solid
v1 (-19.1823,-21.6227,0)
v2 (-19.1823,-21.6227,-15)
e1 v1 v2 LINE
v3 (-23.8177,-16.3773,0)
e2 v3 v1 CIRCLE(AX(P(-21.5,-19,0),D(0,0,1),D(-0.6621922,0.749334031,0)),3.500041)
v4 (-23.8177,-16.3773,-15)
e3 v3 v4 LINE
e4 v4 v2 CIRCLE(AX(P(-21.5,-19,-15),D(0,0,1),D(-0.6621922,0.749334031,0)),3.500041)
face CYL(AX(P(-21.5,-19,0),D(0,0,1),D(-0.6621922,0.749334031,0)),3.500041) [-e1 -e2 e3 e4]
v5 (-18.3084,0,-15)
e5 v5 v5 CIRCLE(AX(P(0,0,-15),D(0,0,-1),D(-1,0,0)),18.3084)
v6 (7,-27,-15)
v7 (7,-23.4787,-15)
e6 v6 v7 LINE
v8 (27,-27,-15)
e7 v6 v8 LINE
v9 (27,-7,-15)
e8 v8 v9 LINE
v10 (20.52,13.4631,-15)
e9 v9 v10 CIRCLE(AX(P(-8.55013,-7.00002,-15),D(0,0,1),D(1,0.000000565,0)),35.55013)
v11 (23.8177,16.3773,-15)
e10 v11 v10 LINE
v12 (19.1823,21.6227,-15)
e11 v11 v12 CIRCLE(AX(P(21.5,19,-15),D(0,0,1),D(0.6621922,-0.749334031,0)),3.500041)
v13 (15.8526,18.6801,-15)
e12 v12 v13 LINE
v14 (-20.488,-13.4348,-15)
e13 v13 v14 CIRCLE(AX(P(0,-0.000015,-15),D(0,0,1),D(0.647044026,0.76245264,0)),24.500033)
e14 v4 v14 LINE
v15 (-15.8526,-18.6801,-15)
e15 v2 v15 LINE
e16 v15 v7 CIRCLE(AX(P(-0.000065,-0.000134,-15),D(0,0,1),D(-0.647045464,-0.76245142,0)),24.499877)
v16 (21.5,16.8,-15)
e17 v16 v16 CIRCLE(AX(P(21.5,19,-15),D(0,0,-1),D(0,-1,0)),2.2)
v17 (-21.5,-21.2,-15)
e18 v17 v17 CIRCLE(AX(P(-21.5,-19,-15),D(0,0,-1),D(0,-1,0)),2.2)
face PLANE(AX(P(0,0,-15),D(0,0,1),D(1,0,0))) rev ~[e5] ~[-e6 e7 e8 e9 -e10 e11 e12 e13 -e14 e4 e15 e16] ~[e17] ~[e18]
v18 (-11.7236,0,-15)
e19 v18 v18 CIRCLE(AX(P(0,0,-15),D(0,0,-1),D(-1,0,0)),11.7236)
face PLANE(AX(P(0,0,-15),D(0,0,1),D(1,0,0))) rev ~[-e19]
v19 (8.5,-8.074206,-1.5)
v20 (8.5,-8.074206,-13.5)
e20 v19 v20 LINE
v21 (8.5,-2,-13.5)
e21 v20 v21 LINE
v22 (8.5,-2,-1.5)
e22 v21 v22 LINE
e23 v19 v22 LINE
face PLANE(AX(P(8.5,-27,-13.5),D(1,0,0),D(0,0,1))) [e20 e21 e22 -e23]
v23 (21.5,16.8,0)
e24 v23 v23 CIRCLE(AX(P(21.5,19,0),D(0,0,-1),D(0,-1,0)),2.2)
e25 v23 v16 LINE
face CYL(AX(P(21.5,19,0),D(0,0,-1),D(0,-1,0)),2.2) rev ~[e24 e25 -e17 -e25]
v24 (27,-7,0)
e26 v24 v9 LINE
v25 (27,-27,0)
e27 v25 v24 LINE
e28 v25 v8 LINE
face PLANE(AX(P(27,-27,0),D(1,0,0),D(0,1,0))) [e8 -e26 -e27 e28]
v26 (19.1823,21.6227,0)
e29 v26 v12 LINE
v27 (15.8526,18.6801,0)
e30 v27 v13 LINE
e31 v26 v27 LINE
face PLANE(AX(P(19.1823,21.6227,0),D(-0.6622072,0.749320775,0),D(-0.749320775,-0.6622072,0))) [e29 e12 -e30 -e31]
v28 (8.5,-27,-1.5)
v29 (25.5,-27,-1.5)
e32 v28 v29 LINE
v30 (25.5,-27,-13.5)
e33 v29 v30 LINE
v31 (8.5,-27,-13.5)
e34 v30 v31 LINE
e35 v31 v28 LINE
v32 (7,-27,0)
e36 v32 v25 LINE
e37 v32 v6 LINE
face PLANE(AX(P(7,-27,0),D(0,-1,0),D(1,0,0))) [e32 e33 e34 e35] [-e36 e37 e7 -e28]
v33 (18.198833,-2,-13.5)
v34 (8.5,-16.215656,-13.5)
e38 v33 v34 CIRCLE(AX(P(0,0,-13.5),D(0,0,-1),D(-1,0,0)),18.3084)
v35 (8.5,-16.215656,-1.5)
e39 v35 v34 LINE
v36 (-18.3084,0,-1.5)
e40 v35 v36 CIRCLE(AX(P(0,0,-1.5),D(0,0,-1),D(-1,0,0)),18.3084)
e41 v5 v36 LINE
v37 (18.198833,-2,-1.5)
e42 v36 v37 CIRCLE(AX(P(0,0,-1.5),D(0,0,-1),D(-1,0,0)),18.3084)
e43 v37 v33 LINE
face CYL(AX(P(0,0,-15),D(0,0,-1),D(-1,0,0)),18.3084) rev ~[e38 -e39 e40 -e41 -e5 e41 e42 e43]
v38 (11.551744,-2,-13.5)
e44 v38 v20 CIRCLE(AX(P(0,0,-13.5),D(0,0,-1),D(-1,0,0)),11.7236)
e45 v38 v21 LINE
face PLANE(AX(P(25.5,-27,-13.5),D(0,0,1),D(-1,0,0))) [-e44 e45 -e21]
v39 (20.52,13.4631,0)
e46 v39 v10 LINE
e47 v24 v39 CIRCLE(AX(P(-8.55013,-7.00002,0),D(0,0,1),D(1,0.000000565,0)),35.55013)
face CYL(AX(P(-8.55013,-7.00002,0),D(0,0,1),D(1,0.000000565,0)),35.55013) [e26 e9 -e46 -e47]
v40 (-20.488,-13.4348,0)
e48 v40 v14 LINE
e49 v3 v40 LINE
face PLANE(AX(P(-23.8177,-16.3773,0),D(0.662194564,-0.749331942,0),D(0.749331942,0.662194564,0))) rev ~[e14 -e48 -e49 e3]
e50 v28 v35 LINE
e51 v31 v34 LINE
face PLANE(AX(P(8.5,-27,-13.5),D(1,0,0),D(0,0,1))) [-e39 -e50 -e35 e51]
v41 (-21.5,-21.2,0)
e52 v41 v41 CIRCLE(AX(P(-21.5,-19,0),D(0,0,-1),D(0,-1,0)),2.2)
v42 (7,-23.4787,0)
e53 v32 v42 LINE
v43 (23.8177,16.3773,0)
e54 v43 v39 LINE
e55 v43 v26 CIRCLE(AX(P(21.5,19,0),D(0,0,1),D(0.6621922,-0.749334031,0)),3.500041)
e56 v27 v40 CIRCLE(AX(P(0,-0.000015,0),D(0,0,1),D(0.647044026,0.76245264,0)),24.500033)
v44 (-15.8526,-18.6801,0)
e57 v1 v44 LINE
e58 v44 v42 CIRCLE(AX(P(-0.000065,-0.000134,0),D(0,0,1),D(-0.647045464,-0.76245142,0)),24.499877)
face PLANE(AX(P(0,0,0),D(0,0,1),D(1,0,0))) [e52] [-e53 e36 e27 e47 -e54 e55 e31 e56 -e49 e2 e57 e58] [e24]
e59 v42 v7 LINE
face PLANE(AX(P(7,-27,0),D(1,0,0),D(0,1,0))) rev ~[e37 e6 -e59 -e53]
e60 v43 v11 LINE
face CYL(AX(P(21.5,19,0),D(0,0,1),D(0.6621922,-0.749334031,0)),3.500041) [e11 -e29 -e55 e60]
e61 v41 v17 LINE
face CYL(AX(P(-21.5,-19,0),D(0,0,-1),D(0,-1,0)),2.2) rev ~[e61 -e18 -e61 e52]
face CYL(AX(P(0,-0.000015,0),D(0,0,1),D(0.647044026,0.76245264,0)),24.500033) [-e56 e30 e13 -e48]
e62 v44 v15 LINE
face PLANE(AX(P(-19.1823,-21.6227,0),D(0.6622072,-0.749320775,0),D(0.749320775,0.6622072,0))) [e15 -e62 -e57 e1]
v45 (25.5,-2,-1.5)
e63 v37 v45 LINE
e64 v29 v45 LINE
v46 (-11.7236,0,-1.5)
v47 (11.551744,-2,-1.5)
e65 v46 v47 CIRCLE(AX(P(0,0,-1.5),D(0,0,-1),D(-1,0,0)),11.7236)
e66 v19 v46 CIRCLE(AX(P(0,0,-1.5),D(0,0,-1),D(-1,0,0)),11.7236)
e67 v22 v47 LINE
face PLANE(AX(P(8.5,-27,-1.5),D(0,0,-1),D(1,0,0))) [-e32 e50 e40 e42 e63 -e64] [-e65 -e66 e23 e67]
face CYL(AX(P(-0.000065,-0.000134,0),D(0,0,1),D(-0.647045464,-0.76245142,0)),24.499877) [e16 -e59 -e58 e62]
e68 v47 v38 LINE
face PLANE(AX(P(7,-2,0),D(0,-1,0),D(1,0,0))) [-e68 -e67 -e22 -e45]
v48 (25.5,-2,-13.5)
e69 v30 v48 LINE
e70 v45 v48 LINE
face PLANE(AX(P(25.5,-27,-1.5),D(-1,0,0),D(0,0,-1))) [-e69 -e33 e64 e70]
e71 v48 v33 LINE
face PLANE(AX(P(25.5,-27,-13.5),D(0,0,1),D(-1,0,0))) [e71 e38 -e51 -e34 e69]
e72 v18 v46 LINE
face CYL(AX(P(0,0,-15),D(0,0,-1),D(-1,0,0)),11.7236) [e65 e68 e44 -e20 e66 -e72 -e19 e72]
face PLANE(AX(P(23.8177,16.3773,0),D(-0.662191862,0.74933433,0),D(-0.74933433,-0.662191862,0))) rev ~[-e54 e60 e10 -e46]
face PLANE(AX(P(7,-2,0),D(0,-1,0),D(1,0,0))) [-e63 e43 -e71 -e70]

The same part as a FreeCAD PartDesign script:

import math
import FreeCAD as App
import Part
import Sketcher

doc = App.newDocument("Part")
body = doc.addObject("PartDesign::Body", "Body")

# Sketch on XY plane
sketch1 = body.newObject("Sketcher::SketchObject", "Sketch")
sketch1.AttachmentSupport = (doc.getObject("XY_Plane"), [""])
sketch1.MapMode = "FlatFace"
sketch1.addGeometry([
    Part.LineSegment(App.Vector(7, -23.5, 0), App.Vector(7, -27, 0)),  # 0
    Part.LineSegment(App.Vector(7, -27, 0), App.Vector(27, -27, 0)),  # 1
    Part.LineSegment(App.Vector(27, -27, 0), App.Vector(27, -7, 0)),  # 2
    Part.ArcOfCircle(Part.Circle(App.Vector(-8.6, -7, 0), App.Vector(0, 0, 1), 35.6), math.radians(0), math.radians(35)),  # 3
    Part.LineSegment(App.Vector(20.5, 13.5, 0), App.Vector(23.8, 16.4, 0)),  # 4
    Part.ArcOfCircle(Part.Circle(App.Vector(21.5, 19, 0), App.Vector(0, 0, 1), 3.5), math.radians(-49), math.radians(131)),  # 5
    Part.LineSegment(App.Vector(19.2, 21.6, 0), App.Vector(15.9, 18.7, 0)),  # 6
    Part.ArcOfCircle(Part.Circle(App.Vector(0, 0, 0), App.Vector(0, 0, 1), 24.5), math.radians(50), math.radians(213)),  # 7
    Part.LineSegment(App.Vector(-20.5, -13.4, 0), App.Vector(-23.8, -16.4, 0)),  # 8
    Part.ArcOfCircle(Part.Circle(App.Vector(-21.5, -19, 0), App.Vector(0, 0, 1), 3.5), math.radians(131), math.radians(311)),  # 9
    Part.LineSegment(App.Vector(-19.2, -21.6, 0), App.Vector(-15.9, -18.7, 0)),  # 10
    Part.ArcOfCircle(Part.Circle(App.Vector(0, 0, 0), App.Vector(0, 0, 1), 24.5), math.radians(-130), math.radians(-73)),  # 11
], False)
sketch1.addConstraint([
    Sketcher.Constraint("Coincident", 0, 2, 1, 1),
    Sketcher.Constraint("Coincident", 1, 2, 2, 1),
    Sketcher.Constraint("Tangent", 2, 2, 3, 1),
    Sketcher.Constraint("Coincident", 3, 2, 4, 1),
    Sketcher.Constraint("Tangent", 4, 2, 5, 1),
    Sketcher.Constraint("Tangent", 5, 2, 6, 1),
    Sketcher.Constraint("Coincident", 6, 2, 7, 1),
    Sketcher.Constraint("Coincident", 7, 2, 8, 1),
    Sketcher.Constraint("Tangent", 8, 2, 9, 1),
    Sketcher.Constraint("Tangent", 9, 2, 10, 1),
    Sketcher.Constraint("Coincident", 10, 2, 11, 1),
    Sketcher.Constraint("Coincident", 11, 2, 0, 1),
    Sketcher.Constraint("Vertical", 0),
    Sketcher.Constraint("Horizontal", 1),
    Sketcher.Constraint("Vertical", 2),
    Sketcher.Constraint("Coincident", 7, 3, -1, 1),
    Sketcher.Constraint("Coincident", 11, 3, -1, 1),
    Sketcher.Constraint("Equal", 5, 9),
    Sketcher.Constraint("Equal", 7, 11),
    Sketcher.Constraint("Symmetric", 5, 3, 9, 3, -1, 1),
    Sketcher.Constraint("Parallel", 4, 6),
    Sketcher.Constraint("Parallel", 6, 8),
    Sketcher.Constraint("Parallel", 8, 10),
    Sketcher.Constraint("Equal", 1, 2),
    Sketcher.Constraint("Equal", 6, 8),
    Sketcher.Constraint("Radius", 5, 3.5),
    Sketcher.Constraint("Radius", 7, 24.5),
    Sketcher.Constraint("DistanceX", 1, 1, 1, 2, 20.0),
    Sketcher.Constraint("DistanceY", 3, 3, -1, 1, 7.0),
    Sketcher.Constraint("DistanceX", -1, 1, 0, 2, 7.0),
    Sketcher.Constraint("DistanceX", 9, 3, 5, 3, 43.0),
    Sketcher.Constraint("DistanceY", 9, 3, 5, 3, 38.0),
    Sketcher.Constraint("Radius", 3, 35.55),
])
pad1 = body.newObject("PartDesign::Pad", "Pad")
pad1.Profile = sketch1
pad1.Length = 15
pad1.Reversed = True

# Sketch on XZ plane
sketch2 = body.newObject("Sketcher::SketchObject", "Sketch001")
sketch2.AttachmentSupport = (doc.getObject("XZ_Plane"), [""])
sketch2.MapMode = "FlatFace"
sketch2.AttachmentOffset = App.Placement(App.Vector(0, 0, 27), App.Rotation())
sketch2.addGeometry([
    Part.LineSegment(App.Vector(26, -2, 0), App.Vector(8, -2, 0)),
    Part.LineSegment(App.Vector(8, -2, 0), App.Vector(8, -14, 0)),
    Part.LineSegment(App.Vector(8, -14, 0), App.Vector(26, -14, 0)),
    Part.LineSegment(App.Vector(26, -14, 0), App.Vector(26, -2, 0)),
], False)
sketch2.addConstraint([
    Sketcher.Constraint("Coincident", 0, 2, 1, 1),
    Sketcher.Constraint("Coincident", 1, 2, 2, 1),
    Sketcher.Constraint("Coincident", 2, 2, 3, 1),
    Sketcher.Constraint("Coincident", 3, 2, 0, 1),
    Sketcher.Constraint("Horizontal", 0),
    Sketcher.Constraint("Vertical", 1),
    Sketcher.Constraint("Horizontal", 2),
    Sketcher.Constraint("Vertical", 3),
    Sketcher.Constraint("DistanceY", 0, 2, -1, 1, 1.5),
    Sketcher.Constraint("DistanceX", 0, 2, 0, 1, 17.0),
    Sketcher.Constraint("DistanceY", 1, 2, 1, 1, 12.0),
    Sketcher.Constraint("DistanceX", -1, 1, 0, 2, 8.5),
])
pocket1 = body.newObject("PartDesign::Pocket", "Pocket")
pocket1.Profile = sketch2
pocket1.Length = 25

# Sketch on XY plane
sketch3 = body.newObject("Sketcher::SketchObject", "Sketch002")
sketch3.AttachmentSupport = (doc.getObject("XY_Plane"), [""])
sketch3.MapMode = "FlatFace"
sketch3.addGeometry([
    Part.Circle(App.Vector(-21.5, -19, 0), App.Vector(0, 0, 1), 2.2),
    Part.Circle(App.Vector(21.5, 19, 0), App.Vector(0, 0, 1), 2.2),
], False)
sketch3.addConstraint([
    Sketcher.Constraint("Equal", 0, 1),
    Sketcher.Constraint("Symmetric", 0, 3, 1, 3, -1, 1),
    Sketcher.Constraint("Diameter", 0, 4.4),
    Sketcher.Constraint("DistanceY", 0, 3, -1, 1, 19.0),
    Sketcher.Constraint("DistanceX", 0, 3, 1, 3, 43.0),
])
doc.recompute()
hole = body.newObject("PartDesign::Hole", "Hole")
hole.Profile = sketch3
hole.ThreadType = "None"
hole.Diameter = 4.4
hole.DepthType = "ThroughAll"

# Sketch on XY plane
sketch4 = body.newObject("Sketcher::SketchObject", "Sketch003")
sketch4.AttachmentSupport = (doc.getObject("XY_Plane"), [""])
sketch4.MapMode = "FlatFace"
sketch4.AttachmentOffset = App.Placement(App.Vector(0, 0, -15), App.Rotation())
sketch4.addGeometry([
    Part.Circle(App.Vector(0, 0, 0), App.Vector(0, 0, 1), 18),
    Part.Circle(App.Vector(0, 0, 0), App.Vector(0, 0, 1), 12),
], False)
sketch4.addConstraint([
    Sketcher.Constraint("Coincident", 0, 3, -1, 1),
    Sketcher.Constraint("Coincident", 1, 3, -1, 1),
    Sketcher.Constraint("Diameter", 0, 36.6168),
    Sketcher.Constraint("Diameter", 1, 23.4472),
])
pocket2 = body.newObject("PartDesign::Pocket", "Pocket001")
pocket2.Profile = sketch4
pocket2.Length = 13.5
pocket2.Reversed = True

doc.recompute()
